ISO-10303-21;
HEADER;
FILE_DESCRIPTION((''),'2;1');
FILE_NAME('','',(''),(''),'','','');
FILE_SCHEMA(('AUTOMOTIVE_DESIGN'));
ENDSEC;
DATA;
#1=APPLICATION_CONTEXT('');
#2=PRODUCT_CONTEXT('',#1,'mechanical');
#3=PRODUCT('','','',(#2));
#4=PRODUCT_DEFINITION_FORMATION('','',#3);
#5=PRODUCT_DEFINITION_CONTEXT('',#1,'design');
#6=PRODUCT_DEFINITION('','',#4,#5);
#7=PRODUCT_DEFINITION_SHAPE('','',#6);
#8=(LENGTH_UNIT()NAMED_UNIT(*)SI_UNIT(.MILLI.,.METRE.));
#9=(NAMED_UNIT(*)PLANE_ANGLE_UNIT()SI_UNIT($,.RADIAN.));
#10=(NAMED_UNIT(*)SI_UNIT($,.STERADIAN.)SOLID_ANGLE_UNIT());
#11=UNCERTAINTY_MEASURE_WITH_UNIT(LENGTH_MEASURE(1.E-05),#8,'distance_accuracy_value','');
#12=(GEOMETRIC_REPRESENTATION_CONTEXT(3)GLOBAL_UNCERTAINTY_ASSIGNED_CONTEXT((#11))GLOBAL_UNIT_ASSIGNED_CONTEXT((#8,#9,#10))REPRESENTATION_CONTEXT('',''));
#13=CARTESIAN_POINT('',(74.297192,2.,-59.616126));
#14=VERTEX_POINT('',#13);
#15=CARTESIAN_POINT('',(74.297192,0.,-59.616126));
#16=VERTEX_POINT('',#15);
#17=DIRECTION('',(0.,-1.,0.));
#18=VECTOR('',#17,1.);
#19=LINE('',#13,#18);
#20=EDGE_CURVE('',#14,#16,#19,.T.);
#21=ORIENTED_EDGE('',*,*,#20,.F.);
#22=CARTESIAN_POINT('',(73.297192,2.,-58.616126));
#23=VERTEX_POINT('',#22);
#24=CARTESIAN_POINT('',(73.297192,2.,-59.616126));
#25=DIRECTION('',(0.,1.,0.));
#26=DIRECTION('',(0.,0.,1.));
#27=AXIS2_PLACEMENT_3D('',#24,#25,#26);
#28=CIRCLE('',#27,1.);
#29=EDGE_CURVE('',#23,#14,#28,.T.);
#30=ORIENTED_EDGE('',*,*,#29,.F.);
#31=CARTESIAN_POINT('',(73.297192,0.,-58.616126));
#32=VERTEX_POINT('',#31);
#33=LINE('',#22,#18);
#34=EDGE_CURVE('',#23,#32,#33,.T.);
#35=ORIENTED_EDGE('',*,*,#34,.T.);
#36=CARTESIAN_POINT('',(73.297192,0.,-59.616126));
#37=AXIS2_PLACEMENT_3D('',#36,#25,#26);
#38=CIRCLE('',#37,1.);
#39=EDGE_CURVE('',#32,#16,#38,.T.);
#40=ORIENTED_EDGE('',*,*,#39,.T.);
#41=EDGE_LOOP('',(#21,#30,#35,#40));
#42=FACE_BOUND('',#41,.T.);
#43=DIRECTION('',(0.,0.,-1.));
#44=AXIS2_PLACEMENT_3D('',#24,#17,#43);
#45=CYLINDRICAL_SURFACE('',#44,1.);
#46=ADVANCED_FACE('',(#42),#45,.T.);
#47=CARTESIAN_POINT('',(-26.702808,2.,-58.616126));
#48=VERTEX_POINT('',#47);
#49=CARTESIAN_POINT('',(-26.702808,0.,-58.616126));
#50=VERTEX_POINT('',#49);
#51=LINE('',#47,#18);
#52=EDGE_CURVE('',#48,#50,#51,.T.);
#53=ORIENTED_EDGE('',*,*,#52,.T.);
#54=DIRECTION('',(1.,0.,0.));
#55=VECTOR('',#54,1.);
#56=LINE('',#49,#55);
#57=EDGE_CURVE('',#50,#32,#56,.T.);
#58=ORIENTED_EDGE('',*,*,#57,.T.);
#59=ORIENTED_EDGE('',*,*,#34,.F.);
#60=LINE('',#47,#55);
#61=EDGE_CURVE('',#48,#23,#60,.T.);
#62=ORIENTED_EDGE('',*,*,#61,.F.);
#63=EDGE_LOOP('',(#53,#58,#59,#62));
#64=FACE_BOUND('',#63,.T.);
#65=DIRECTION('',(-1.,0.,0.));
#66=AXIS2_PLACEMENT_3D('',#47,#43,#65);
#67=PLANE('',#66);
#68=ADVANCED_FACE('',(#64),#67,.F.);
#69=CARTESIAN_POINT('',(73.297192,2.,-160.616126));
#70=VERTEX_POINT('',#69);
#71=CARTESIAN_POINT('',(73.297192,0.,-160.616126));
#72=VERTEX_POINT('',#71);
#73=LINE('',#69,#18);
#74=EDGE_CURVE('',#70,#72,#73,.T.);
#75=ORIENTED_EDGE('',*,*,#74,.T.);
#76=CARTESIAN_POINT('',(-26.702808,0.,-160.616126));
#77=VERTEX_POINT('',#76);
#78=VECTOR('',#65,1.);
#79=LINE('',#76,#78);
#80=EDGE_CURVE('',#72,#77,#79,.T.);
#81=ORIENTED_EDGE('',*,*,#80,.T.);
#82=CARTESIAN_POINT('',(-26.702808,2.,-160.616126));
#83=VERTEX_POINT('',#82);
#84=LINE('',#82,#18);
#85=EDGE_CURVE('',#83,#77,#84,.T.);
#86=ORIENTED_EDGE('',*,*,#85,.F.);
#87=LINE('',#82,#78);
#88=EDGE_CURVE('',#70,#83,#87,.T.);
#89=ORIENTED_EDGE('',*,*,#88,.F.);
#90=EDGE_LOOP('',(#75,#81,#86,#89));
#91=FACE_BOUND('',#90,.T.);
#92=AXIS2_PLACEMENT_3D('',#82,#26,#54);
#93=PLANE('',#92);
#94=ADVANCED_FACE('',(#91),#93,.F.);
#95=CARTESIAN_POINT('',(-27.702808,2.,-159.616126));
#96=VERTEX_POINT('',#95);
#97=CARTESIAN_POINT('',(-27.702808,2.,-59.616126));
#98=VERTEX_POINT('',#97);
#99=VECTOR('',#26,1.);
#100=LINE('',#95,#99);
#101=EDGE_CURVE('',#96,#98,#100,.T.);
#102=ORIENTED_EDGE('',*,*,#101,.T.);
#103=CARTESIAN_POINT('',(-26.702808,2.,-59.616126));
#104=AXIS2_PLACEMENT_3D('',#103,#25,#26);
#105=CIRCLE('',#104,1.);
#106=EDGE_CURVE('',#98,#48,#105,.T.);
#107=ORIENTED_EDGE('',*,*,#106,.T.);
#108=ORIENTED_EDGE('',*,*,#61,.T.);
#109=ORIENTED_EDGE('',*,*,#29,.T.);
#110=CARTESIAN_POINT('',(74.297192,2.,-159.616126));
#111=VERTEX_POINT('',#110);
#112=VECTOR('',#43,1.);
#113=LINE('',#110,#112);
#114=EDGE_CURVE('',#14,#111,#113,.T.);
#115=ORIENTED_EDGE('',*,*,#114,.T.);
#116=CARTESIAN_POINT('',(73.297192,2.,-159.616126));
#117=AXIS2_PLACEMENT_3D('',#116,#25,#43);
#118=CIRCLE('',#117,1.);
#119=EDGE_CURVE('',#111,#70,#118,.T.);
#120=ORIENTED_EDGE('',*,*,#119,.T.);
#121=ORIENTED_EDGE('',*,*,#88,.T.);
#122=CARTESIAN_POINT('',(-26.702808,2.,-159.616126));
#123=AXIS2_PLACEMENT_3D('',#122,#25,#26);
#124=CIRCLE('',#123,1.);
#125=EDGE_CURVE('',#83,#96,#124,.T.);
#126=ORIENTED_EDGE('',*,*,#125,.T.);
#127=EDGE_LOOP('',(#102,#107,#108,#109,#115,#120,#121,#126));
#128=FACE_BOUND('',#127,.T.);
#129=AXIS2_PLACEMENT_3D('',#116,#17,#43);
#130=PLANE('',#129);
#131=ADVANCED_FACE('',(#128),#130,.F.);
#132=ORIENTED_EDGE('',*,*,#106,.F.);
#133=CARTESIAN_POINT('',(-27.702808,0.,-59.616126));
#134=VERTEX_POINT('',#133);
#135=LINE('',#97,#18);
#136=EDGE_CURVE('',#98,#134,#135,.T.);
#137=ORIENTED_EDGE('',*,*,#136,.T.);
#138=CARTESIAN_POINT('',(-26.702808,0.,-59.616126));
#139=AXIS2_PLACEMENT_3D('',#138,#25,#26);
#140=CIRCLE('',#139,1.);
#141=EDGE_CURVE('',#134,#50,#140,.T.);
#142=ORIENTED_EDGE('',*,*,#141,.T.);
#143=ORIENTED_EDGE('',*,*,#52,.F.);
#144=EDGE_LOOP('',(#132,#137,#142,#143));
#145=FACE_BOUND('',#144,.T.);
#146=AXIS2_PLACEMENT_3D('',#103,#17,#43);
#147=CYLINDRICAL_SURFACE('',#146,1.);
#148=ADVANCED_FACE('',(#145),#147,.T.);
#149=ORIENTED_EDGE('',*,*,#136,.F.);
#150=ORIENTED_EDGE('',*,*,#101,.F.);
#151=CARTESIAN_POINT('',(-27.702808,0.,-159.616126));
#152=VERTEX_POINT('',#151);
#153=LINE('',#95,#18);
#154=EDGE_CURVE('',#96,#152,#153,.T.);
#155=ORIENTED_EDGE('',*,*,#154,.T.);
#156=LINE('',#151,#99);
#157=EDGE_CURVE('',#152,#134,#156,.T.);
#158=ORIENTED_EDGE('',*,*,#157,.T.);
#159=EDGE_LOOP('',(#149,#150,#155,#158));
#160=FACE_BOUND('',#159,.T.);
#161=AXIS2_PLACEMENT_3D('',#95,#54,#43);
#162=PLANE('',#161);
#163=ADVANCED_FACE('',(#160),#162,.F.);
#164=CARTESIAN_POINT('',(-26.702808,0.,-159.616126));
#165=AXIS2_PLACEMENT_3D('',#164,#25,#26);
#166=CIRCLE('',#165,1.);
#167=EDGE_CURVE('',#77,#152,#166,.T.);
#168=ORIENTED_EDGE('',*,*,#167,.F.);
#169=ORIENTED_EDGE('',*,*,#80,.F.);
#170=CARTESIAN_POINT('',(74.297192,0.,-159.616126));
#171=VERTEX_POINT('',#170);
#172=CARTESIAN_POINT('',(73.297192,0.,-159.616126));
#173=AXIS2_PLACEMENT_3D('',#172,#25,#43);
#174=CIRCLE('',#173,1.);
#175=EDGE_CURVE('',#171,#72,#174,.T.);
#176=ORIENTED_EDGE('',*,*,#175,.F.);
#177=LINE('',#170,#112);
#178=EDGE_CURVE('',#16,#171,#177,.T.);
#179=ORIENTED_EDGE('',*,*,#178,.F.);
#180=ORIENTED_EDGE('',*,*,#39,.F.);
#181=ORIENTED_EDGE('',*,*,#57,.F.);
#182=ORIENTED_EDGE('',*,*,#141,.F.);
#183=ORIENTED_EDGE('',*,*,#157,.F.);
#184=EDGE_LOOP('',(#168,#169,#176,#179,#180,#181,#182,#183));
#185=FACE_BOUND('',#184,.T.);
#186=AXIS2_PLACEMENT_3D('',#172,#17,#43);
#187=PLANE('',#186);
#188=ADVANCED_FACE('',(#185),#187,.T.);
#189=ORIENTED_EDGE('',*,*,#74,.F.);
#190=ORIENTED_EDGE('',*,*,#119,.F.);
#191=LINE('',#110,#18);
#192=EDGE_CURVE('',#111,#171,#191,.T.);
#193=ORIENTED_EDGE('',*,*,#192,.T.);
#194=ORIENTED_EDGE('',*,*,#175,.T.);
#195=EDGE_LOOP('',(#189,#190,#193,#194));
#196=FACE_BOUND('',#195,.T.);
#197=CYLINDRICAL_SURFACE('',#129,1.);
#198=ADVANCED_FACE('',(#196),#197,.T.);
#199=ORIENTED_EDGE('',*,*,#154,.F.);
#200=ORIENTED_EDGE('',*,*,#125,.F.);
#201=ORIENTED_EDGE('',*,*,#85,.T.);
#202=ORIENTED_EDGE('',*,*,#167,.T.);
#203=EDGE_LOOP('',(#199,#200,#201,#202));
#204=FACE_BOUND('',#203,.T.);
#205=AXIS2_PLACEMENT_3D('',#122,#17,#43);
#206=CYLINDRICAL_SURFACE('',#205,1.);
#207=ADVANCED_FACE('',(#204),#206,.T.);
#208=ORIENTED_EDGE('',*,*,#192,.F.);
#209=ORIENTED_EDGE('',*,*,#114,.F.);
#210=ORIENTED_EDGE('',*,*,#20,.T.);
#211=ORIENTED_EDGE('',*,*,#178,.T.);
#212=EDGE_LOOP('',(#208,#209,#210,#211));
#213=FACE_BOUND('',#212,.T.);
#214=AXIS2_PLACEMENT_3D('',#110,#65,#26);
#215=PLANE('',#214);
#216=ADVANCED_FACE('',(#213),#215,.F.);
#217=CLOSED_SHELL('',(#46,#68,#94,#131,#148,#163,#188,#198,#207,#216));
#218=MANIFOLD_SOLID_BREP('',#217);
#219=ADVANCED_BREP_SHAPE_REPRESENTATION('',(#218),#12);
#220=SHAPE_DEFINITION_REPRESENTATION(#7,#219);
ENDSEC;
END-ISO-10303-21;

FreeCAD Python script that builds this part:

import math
import FreeCAD as App
import Part
import Sketcher

V = App.Vector

doc = App.newDocument("Part")
params = doc.addObject("Spreadsheet::Sheet", "Params")
for row, (alias, value) in enumerate([
    ("sketch1_radius", "1 mm"),
    ("sketch1_width", "100 mm"),
    ("pad1_length", "2 mm"),
], start=1):
    params.set(f"A{row}", alias)
    params.set(f"B{row}", "=" + value)
    params.setAlias(f"B{row}", alias)

body = doc.addObject("PartDesign::Body", "Body")

# Sketch on XZ plane
sketch1 = body.newObject("Sketcher::SketchObject", "Sketch")
sketch1.AttachmentSupport = (doc.getObject("XZ_Plane"), [""])
sketch1.MapMode = "FlatFace"
sketch1.addGeometry([
    Part.LineSegment(V(73.297192, -160.616126, 0), V(-26.702808, -160.616126, 0)),  # 0
    Part.ArcOfCircle(Part.Circle(V(-26.702808, -159.616126, 0), V(0, 0, 1), 1), math.radians(-180), math.radians(-90)),  # 1
    Part.LineSegment(V(-27.702808, -159.616126, 0), V(-27.702808, -59.616126, 0)),  # 2
    Part.ArcOfCircle(Part.Circle(V(-26.702808, -59.616126, 0), V(0, 0, 1), 1), math.radians(90), math.radians(180)),  # 3
    Part.LineSegment(V(-26.702808, -58.616126, 0), V(73.297192, -58.616126, 0)),  # 4
    Part.ArcOfCircle(Part.Circle(V(73.297192, -59.616126, 0), V(0, 0, 1), 1), math.radians(0), math.radians(90)),  # 5
    Part.LineSegment(V(74.297192, -59.616126, 0), V(74.297192, -159.616126, 0)),  # 6
    Part.ArcOfCircle(Part.Circle(V(73.297192, -159.616126, 0), V(0, 0, 1), 1), math.radians(-90), math.radians(0)),  # 7
], False)
sketch1.addConstraint([
    Sketcher.Constraint("Tangent", 0, 2, 1, 2),
    Sketcher.Constraint("Tangent", 1, 1, 2, 1),
    Sketcher.Constraint("Tangent", 2, 2, 3, 2),
    Sketcher.Constraint("Tangent", 3, 1, 4, 1),
    Sketcher.Constraint("Tangent", 4, 2, 5, 2),
    Sketcher.Constraint("Tangent", 5, 1, 6, 1),
    Sketcher.Constraint("Tangent", 6, 2, 7, 2),
    Sketcher.Constraint("Tangent", 7, 1, 0, 1),
    Sketcher.Constraint("Horizontal", 0),
    Sketcher.Constraint("Vertical", 2),
    Sketcher.Constraint("Horizontal", 4),
    Sketcher.Constraint("Vertical", 6),
    Sketcher.Constraint("Equal", 1, 3),
    Sketcher.Constraint("Equal", 3, 5),
    Sketcher.Constraint("Equal", 5, 7),
    Sketcher.Constraint("Equal", 4, 2),
    Sketcher.Constraint("Radius", 1, 1.0),
    Sketcher.Constraint("DistanceX", 0, 2, 0, 1, 100.0),
    Sketcher.Constraint("DistanceX", 1, 3, -1, 1, 26.702808),
    Sketcher.Constraint("DistanceY", 1, 3, -1, 1, 159.616126),
])
sketch1.setExpression("Constraints[16]", "Params.sketch1_radius")
sketch1.setExpression("Constraints[17]", "Params.sketch1_width")
pad1 = body.newObject("PartDesign::Pad", "Pad")
pad1.Profile = sketch1
pad1.setExpression("Length", "Params.pad1_length")
pad1.Reversed = True

doc.recompute()
